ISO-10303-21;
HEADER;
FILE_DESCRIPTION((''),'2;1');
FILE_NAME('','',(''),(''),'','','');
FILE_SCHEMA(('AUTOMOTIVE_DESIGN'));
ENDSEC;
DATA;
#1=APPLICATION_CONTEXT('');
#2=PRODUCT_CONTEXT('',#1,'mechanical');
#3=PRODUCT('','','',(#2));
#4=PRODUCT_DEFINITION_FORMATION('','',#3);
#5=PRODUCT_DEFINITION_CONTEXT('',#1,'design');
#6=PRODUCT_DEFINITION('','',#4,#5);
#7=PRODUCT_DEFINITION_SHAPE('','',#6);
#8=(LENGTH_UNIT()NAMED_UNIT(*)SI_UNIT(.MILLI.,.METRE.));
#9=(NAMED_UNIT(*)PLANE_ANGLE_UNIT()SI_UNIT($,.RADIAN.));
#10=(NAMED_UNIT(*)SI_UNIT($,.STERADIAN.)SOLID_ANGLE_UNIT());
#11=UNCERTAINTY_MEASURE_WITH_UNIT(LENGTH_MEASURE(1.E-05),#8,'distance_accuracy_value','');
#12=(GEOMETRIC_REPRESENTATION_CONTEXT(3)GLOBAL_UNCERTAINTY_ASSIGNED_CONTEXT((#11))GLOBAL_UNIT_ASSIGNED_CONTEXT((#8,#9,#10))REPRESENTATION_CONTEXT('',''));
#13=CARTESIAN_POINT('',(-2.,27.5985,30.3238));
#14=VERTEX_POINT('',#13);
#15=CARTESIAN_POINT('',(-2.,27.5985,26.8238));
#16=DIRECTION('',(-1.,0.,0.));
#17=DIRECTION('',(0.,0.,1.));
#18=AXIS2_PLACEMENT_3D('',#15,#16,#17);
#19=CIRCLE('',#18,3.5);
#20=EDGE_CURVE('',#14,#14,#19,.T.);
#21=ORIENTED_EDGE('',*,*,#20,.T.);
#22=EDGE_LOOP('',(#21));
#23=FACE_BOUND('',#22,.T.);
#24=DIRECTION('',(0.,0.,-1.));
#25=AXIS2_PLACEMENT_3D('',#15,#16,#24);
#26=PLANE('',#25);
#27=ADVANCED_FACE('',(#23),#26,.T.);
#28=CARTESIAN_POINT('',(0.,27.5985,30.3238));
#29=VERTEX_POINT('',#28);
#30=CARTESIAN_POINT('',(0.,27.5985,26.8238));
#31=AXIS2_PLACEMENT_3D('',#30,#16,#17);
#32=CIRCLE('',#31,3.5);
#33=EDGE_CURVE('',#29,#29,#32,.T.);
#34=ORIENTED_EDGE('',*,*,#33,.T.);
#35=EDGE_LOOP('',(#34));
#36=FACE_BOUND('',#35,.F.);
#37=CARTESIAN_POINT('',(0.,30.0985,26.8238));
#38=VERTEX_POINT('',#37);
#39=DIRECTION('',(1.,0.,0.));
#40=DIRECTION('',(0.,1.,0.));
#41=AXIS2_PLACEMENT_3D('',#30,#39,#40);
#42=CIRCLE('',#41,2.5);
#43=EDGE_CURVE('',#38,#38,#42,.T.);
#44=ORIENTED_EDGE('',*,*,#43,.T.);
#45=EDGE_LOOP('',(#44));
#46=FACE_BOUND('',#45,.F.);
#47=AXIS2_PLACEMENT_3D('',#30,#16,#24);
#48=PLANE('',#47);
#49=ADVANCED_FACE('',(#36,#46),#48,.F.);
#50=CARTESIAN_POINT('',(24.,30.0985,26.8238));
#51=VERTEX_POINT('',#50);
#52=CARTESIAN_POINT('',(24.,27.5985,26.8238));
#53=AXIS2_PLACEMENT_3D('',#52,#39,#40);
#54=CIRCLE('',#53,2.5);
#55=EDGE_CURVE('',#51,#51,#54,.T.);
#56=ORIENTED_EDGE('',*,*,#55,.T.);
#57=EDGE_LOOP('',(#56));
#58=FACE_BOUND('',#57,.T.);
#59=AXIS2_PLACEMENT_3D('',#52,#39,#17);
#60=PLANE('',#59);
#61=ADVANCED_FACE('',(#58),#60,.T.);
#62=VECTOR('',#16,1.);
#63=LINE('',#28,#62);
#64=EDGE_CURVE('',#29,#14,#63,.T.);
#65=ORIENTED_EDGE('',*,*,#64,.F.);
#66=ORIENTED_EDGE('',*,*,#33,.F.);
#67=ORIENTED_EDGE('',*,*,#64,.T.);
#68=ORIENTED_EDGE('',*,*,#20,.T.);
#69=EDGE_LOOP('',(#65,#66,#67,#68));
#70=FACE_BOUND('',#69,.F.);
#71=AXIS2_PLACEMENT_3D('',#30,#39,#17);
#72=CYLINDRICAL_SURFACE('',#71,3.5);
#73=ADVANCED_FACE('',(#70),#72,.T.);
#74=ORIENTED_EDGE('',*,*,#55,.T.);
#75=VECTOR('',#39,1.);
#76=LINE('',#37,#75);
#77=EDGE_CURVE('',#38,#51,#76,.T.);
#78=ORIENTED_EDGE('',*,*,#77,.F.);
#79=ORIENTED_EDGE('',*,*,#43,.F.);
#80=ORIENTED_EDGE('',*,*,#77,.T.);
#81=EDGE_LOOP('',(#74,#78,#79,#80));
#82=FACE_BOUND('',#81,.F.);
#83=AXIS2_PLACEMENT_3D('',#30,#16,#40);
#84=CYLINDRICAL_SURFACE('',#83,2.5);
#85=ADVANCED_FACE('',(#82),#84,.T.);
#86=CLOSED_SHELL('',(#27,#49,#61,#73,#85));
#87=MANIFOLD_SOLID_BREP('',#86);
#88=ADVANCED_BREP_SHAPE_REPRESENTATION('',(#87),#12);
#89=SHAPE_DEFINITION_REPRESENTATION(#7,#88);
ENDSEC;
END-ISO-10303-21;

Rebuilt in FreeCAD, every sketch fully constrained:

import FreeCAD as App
import Part
import Sketcher
from FreeCAD import Vector
Q = App.Units.Quantity

doc = App.newDocument("Part")
params = doc.addObject("Spreadsheet::Sheet", "Params")
for row, (alias, value) in enumerate([
    ("sketch1_diameter", "5 mm"),
    ("pad1_length", "24 mm"),
    ("sketch2_diameter", "7 mm"),
    ("pad2_length", "2 mm"),
], start=1):
    params.set(f"A{row}", alias)
    params.set(f"B{row}", "=" + value)
    params.setAlias(f"B{row}", alias)

body = doc.addObject("PartDesign::Body", "Body")

sketch1 = body.newObject("Sketcher::SketchObject", "Sketch")
sketch1.AttachmentSupport = (doc.getObject("YZ_Plane"), [""])
sketch1.MapMode = "FlatFace"
sketch1.addGeometry(Part.Circle(Vector(27.6, 26.8, 0), Vector(0, 0, 1), 2.5), False)
sketch1.addConstraint(Sketcher.Constraint("Diameter", 0, Q("5 mm")))
sketch1.addConstraint(Sketcher.Constraint("DistanceX", -1, 1, 0, 3, Q("27.5985 mm")))
sketch1.addConstraint(Sketcher.Constraint("DistanceY", -1, 1, 0, 3, Q("26.8238 mm")))
sketch1.setExpression("Constraints[0]", "Params.sketch1_diameter")
pad1 = body.newObject("PartDesign::Pad", "Pad")
pad1.Profile = sketch1
pad1.setExpression("Length", "Params.pad1_length")

sketch2 = body.newObject("Sketcher::SketchObject", "Sketch001")
sketch2.AttachmentSupport = (doc.getObject("YZ_Plane"), [""])
sketch2.MapMode = "FlatFace"
sketch2.addGeometry(Part.Circle(Vector(27.6, 26.8, 0), Vector(0, 0, 1), 3.5), False)
sketch2.addConstraint(Sketcher.Constraint("Diameter", 0, Q("7 mm")))
sketch2.addConstraint(Sketcher.Constraint("DistanceX", -1, 1, 0, 3, Q("27.5985 mm")))
sketch2.addConstraint(Sketcher.Constraint("DistanceY", -1, 1, 0, 3, Q("26.8238 mm")))
sketch2.setExpression("Constraints[0]", "Params.sketch2_diameter")
pad2 = body.newObject("PartDesign::Pad", "Pad001")
pad2.Profile = sketch2
pad2.setExpression("Length", "Params.pad2_length")
pad2.Reversed = True

doc.recompute()
